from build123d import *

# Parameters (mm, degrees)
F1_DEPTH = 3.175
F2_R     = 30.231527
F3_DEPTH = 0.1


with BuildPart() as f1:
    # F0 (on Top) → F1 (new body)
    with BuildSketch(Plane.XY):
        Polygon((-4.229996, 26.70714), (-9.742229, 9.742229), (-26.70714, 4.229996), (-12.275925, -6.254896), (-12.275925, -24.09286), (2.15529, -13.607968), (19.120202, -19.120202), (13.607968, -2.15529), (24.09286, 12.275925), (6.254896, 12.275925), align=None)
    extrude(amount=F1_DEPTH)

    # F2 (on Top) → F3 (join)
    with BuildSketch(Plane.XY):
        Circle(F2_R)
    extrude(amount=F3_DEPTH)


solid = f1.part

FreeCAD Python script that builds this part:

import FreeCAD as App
import Part
import Sketcher
from FreeCAD import Vector
Q = App.Units.Quantity


def add_polygon(sketch, points):
    """Adds a closed chain of lines whose ends are joined by coincident constraints."""
    first, n = sketch.GeometryCount, len(points)
    for a, b in zip(points, points[1:] + points[:1]):
        sketch.addGeometry(Part.LineSegment(App.Vector(*a, 0), App.Vector(*b, 0)), False)
    for i in range(n):
        sketch.addConstraint(Sketcher.Constraint("Coincident", first + i, 2, first + (i + 1) % n, 1))

doc = App.newDocument("Part")
body = doc.addObject("PartDesign::Body", "Body")

sketch1 = doc.addObject("Sketcher::SketchObject", "Sketch")
body.addObject(sketch1)
sketch1.AttachmentSupport = (doc.XY_Plane, [""])
sketch1.MapMode = "FlatFace"
add_polygon(sketch1, [(-4, 27), (-10, 10), (-27, 4), (-12, -6), (-12, -24), (2, -14), (19, -19), (14, -2), (24, 12), (6, 12)])
sketch1.addConstraint(Sketcher.Constraint("Vertical", 3))
sketch1.addConstraint(Sketcher.Constraint("Horizontal", 8))
sketch1.addConstraint(Sketcher.Constraint("Perpendicular", 0, 5))
sketch1.addConstraint(Sketcher.Constraint("Perpendicular", 1, 6))
sketch1.addConstraint(Sketcher.Constraint("Perpendicular", 2, 7))
sketch1.addConstraint(Sketcher.Constraint("Perpendicular", 4, 9))
sketch1.addConstraint(Sketcher.Constraint("Equal", 8, 3))
sketch1.addConstraint(Sketcher.Constraint("Equal", 0, 1))
sketch1.addConstraint(Sketcher.Constraint("Equal", 1, 2))
sketch1.addConstraint(Sketcher.Constraint("Equal", 2, 4))
sketch1.addConstraint(Sketcher.Constraint("Equal", 4, 5))
sketch1.addConstraint(Sketcher.Constraint("Equal", 5, 6))
sketch1.addConstraint(Sketcher.Constraint("Equal", 6, 7))
sketch1.addConstraint(Sketcher.Constraint("Equal", 7, 9))
sketch1.addConstraint(Sketcher.Constraint("Angle", 0, Q("-107.999998 deg")))
sketch1.addConstraint(Sketcher.Constraint("Angle", 1, Q("-162.000002 deg")))
sketch1.addConstraint(Sketcher.Constraint("Angle", 2, Q("-36.000001 deg")))
sketch1.addConstraint(Sketcher.Constraint("DistanceX", -1, 1, 5, 2, 19.120202))
sketch1.addConstraint(Sketcher.Constraint("DistanceY", 5, 2, -1, 1, 19.120202))
sketch1.addConstraint(Sketcher.Constraint("DistanceX", 8, 2, 8, 1, 17.837964))
pad1 = doc.addObject("PartDesign::Pad", "Pad")
body.addObject(pad1)
pad1.Profile = sketch1
pad1.Length = 3.175

sketch2 = doc.addObject("Sketcher::SketchObject", "Sketch001")
body.addObject(sketch2)
sketch2.AttachmentSupport = (doc.XY_Plane, [""])
sketch2.MapMode = "FlatFace"
sketch2.addGeometry(Part.Circle(Vector(0, 0, 0), Vector(0, 0, 1), 30), False)
sketch2.addConstraint(Sketcher.Constraint("Coincident", 0, 3, -1, 1))
sketch2.addConstraint(Sketcher.Constraint("Diameter", 0, 60.463054))
pad2 = doc.addObject("PartDesign::Pad", "Pad001")
body.addObject(pad2)
pad2.Profile = sketch2
pad2.Length = 0.1

doc.recompute()
